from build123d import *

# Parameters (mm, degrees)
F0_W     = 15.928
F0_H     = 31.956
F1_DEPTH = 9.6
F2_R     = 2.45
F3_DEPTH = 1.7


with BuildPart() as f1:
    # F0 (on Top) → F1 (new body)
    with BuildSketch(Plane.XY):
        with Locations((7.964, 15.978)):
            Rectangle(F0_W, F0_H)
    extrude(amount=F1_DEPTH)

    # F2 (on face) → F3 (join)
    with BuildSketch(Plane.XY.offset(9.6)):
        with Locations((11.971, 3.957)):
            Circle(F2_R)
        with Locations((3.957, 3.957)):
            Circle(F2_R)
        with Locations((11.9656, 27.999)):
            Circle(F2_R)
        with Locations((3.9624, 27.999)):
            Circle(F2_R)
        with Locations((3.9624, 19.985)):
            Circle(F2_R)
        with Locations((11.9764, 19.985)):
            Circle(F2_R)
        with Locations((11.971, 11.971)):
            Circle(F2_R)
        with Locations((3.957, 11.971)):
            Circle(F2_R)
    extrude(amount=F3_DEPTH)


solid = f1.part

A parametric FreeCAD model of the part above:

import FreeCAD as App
import Part
import Sketcher
from FreeCAD import Vector
Q = App.Units.Quantity


def add_polygon(sketch, points):
    """Adds a closed chain of lines whose ends are joined by coincident constraints."""
    first, n = sketch.GeometryCount, len(points)
    for a, b in zip(points, points[1:] + points[:1]):
        sketch.addGeometry(Part.LineSegment(App.Vector(*a, 0), App.Vector(*b, 0)), False)
    for i in range(n):
        sketch.addConstraint(Sketcher.Constraint("Coincident", first + i, 2, first + (i + 1) % n, 1))

doc = App.newDocument("Part")
body = doc.addObject("PartDesign::Body", "Body")

sketch1 = body.newObject("Sketcher::SketchObject", "Sketch")
sketch1.AttachmentSupport = (doc.getObject("XY_Plane"), [""])
sketch1.MapMode = "FlatFace"
add_polygon(sketch1, [(0, 32), (0, 0), (16, 0), (16, 32)])
sketch1.addConstraint([
    Sketcher.Constraint("Vertical", 0),
    Sketcher.Constraint("Horizontal", 1),
    Sketcher.Constraint("Vertical", 2),
    Sketcher.Constraint("Horizontal", 3),
    Sketcher.Constraint("Coincident", 0, 2, -1, 1),
    Sketcher.Constraint("DistanceX", 1, 1, 1, 2, Q("15.928 mm")),
    Sketcher.Constraint("DistanceY", 0, 2, 0, 1, Q("31.956 mm")),
])
pad1 = body.newObject("PartDesign::Pad", "Pad")
pad1.Profile = sketch1
pad1.Length = 9.6

sketch2 = body.newObject("Sketcher::SketchObject", "Sketch001")
sketch2.AttachmentSupport = (doc.getObject("XY_Plane"), [""])
sketch2.MapMode = "FlatFace"
sketch2.AttachmentOffset = App.Placement(Vector(0, 0, 9.6), App.Rotation())
sketch2.addGeometry([
    Part.Circle(Vector(12, 4, 0), Vector(0, 0, 1), 2.5),
    Part.Circle(Vector(4, 4, 0), Vector(0, 0, 1), 2.5),
    Part.Circle(Vector(12, 28, 0), Vector(0, 0, 1), 2.5),
    Part.Circle(Vector(4, 28, 0), Vector(0, 0, 1), 2.5),
    Part.Circle(Vector(4, 20, 0), Vector(0, 0, 1), 2.5),
    Part.Circle(Vector(12, 20, 0), Vector(0, 0, 1), 2.5),
    Part.Circle(Vector(12, 12, 0), Vector(0, 0, 1), 2.5),
    Part.Circle(Vector(4, 12, 0), Vector(0, 0, 1), 2.5),
], False)
sketch2.addConstraint([
    Sketcher.Constraint("Equal", 0, 1),
    Sketcher.Constraint("Equal", 1, 2),
    Sketcher.Constraint("Equal", 2, 3),
    Sketcher.Constraint("Equal", 3, 4),
    Sketcher.Constraint("Equal", 4, 5),
    Sketcher.Constraint("Equal", 5, 6),
    Sketcher.Constraint("Equal", 6, 7),
    Sketcher.Constraint("Horizontal", 0, 3, 1, 3),
    Sketcher.Constraint("Horizontal", 2, 3, 3, 3),
    Sketcher.Constraint("Horizontal", 4, 3, 5, 3),
    Sketcher.Constraint("Horizontal", 6, 3, 7, 3),
    Sketcher.Constraint("Vertical", 3, 3, 4, 3),
    Sketcher.Constraint("Vertical", 0, 3, 6, 3),
    Sketcher.Constraint("Vertical", 1, 3, 7, 3),
    Sketcher.Constraint("Diameter", 0, Q("4.9 mm")),
    Sketcher.Constraint("DistanceX", -1, 1, 0, 3, Q("11.971 mm")),
    Sketcher.Constraint("DistanceY", -1, 1, 0, 3, Q("3.957 mm")),
    Sketcher.Constraint("DistanceX", -1, 1, 1, 3, Q("3.957 mm")),
    Sketcher.Constraint("DistanceY", -1, 1, 2, 3, Q("27.999 mm")),
    Sketcher.Constraint("DistanceY", -1, 1, 4, 3, Q("19.985 mm")),
    Sketcher.Constraint("DistanceY", -1, 1, 6, 3, Q("11.971 mm")),
    Sketcher.Constraint("DistanceX", 4, 3, 5, 3, Q("8.014 mm")),
    Sketcher.Constraint("DistanceX", -1, 1, 2, 3, Q("11.9656 mm")),
    Sketcher.Constraint("DistanceX", -1, 1, 3, 3, Q("3.9624 mm")),
])
pad2 = body.newObject("PartDesign::Pad", "Pad001")
pad2.Profile = sketch2
pad2.Length = 1.7

doc.recompute()
